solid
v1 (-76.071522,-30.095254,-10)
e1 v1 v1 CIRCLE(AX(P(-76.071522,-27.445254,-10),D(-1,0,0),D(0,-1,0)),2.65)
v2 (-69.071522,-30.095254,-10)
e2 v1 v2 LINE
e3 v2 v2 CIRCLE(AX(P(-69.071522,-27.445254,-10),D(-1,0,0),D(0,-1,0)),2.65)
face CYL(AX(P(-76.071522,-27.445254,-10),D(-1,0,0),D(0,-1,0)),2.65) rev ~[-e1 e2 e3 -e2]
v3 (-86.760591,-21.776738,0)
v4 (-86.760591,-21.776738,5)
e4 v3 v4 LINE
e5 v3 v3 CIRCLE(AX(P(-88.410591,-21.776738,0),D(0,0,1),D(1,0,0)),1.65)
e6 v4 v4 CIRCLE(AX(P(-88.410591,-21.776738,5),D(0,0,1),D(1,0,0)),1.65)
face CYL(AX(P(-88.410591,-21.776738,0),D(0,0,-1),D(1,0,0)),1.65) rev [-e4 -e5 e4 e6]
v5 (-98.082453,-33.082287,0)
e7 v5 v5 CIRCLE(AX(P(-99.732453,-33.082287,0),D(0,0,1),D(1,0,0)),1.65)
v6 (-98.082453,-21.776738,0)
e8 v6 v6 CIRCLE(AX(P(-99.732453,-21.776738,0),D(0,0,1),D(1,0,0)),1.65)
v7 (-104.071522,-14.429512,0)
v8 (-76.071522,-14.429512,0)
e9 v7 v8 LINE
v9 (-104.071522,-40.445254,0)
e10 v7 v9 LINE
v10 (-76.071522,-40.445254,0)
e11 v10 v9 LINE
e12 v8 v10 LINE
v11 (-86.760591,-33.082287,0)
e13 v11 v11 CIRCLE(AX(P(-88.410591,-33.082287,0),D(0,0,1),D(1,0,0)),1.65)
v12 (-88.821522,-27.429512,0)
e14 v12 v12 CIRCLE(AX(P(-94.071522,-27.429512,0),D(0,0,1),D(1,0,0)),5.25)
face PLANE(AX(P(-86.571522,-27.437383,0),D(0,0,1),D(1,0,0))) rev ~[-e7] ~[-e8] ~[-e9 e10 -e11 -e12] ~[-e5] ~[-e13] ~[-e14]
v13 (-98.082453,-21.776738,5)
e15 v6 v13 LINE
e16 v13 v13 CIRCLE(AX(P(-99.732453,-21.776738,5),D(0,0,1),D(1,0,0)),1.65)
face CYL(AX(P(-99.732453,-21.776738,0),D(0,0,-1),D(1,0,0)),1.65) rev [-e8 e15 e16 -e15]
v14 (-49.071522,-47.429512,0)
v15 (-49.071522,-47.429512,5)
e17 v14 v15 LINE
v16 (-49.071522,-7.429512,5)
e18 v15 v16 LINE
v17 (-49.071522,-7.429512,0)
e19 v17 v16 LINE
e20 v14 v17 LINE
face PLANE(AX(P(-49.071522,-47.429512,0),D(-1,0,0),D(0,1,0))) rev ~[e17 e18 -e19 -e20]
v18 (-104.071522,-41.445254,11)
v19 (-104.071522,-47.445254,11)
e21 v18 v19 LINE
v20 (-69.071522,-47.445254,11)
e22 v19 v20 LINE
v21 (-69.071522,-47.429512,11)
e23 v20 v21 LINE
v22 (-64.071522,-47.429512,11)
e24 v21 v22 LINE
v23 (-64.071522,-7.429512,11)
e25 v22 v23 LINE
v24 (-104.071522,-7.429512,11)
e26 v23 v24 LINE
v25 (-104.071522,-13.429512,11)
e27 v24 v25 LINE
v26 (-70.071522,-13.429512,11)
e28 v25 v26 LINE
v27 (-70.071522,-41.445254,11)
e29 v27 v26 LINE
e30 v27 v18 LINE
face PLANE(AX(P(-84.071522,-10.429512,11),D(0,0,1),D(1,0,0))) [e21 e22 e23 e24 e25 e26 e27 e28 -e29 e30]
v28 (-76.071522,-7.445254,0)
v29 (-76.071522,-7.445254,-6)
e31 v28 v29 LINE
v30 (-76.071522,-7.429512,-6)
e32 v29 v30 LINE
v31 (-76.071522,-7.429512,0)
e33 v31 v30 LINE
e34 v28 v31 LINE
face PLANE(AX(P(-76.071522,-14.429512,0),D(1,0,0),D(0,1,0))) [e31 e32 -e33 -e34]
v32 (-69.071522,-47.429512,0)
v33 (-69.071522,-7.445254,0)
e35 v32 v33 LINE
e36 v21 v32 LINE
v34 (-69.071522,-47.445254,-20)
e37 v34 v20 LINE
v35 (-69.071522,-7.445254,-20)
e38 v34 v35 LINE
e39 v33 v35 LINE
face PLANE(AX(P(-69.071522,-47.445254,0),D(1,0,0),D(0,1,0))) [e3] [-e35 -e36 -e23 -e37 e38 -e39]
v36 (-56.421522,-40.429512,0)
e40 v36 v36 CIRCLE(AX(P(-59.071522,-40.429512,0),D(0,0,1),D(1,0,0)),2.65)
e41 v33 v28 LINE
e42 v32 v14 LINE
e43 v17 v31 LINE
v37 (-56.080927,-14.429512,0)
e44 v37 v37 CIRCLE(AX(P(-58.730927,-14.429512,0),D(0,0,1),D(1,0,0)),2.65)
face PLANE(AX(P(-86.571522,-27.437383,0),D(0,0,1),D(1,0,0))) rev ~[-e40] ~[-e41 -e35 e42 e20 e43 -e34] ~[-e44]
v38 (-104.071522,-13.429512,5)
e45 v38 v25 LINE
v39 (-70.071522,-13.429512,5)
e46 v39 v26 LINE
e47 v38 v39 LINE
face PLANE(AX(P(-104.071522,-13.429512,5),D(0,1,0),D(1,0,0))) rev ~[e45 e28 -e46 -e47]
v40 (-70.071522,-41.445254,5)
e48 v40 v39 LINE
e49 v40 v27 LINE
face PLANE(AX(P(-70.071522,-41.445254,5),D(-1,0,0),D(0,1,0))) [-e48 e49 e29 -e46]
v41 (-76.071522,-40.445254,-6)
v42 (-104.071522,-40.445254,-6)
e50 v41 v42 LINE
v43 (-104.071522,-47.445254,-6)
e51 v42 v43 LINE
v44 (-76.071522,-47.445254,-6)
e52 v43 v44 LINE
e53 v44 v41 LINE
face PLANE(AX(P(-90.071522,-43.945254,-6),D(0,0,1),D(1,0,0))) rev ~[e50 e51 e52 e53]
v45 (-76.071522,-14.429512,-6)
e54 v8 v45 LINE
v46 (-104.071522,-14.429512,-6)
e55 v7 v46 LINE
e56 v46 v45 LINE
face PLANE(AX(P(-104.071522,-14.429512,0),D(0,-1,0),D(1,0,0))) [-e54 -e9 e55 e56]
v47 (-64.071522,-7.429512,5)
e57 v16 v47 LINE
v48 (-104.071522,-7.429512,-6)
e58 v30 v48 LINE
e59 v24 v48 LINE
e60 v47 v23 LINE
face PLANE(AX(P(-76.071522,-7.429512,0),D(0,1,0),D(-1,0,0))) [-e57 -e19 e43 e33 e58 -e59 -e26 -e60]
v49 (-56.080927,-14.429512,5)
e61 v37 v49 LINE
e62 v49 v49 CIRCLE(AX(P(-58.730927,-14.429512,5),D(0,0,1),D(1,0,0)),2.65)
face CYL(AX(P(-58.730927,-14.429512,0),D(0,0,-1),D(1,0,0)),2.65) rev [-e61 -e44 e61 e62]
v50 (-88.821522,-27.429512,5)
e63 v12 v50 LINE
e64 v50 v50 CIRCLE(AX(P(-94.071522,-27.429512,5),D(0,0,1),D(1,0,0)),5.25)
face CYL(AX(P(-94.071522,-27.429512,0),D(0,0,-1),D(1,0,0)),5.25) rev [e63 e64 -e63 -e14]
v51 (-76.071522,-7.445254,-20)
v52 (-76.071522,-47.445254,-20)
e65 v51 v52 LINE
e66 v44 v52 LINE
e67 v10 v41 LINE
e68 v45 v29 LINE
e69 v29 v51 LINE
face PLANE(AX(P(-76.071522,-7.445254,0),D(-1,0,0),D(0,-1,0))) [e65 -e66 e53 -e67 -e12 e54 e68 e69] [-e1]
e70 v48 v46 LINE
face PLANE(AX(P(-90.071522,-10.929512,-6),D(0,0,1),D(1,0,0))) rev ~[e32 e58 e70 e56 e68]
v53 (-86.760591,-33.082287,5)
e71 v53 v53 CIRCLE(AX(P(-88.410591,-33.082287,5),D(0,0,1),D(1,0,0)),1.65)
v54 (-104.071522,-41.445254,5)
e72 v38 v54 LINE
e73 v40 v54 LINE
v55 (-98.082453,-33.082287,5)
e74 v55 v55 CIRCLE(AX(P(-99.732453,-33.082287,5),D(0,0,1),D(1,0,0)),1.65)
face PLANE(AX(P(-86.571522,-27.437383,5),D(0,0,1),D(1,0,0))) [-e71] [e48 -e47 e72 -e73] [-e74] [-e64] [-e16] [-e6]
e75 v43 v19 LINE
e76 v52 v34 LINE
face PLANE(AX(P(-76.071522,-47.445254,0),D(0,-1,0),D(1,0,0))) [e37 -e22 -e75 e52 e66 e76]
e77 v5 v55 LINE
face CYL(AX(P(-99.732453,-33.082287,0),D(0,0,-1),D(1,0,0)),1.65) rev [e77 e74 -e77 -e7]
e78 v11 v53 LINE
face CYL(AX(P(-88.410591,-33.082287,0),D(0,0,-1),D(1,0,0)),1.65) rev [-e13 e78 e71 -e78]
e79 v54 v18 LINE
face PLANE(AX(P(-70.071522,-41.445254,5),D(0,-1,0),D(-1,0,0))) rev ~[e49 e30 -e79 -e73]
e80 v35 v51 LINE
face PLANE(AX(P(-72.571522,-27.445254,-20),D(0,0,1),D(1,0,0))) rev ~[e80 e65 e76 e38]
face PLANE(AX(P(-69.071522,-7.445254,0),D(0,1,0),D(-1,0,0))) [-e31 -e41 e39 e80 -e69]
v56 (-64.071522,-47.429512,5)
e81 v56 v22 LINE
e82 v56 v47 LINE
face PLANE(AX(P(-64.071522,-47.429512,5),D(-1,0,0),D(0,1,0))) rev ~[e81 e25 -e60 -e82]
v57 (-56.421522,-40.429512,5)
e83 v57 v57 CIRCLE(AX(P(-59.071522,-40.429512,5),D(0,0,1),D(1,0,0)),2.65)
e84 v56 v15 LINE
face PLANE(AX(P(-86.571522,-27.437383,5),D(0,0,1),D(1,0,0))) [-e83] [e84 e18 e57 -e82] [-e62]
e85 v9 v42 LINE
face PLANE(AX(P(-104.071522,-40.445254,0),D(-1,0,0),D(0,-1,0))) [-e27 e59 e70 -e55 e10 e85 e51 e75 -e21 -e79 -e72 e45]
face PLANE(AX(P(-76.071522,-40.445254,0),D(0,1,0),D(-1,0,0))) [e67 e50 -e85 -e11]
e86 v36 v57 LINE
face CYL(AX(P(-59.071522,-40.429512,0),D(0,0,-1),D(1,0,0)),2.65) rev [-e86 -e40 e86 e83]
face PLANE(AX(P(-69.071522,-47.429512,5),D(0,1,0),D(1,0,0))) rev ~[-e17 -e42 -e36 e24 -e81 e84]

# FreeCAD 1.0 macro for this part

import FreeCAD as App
import Part
import Sketcher
from FreeCAD import Vector

doc = App.newDocument("Part")
body = doc.addObject("PartDesign::Body", "Body")

sketch1 = body.newObject("Sketcher::SketchObject", "Sketch")
sketch1.AttachmentSupport = (doc.getObject("XY_Plane"), [""])
sketch1.MapMode = "FlatFace"
sketch1.addGeometry(Part.LineSegment(Vector(-69.072, -47.445, 0), Vector(-69.072, -47.43, 0)), False)
sketch1.addGeometry(Part.LineSegment(Vector(-69.072, -47.43, 0), Vector(-49.072, -47.43, 0)), False)
sketch1.addGeometry(Part.LineSegment(Vector(-49.072, -47.43, 0), Vector(-49.072, -7.43, 0)), False)
sketch1.addGeometry(Part.LineSegment(Vector(-49.072, -7.43, 0), Vector(-104.072, -7.43, 0)), False)
sketch1.addGeometry(Part.LineSegment(Vector(-104.072, -7.43, 0), Vector(-104.072, -47.445, 0)), False)
sketch1.addGeometry(Part.LineSegment(Vector(-104.072, -47.445, 0), Vector(-69.072, -47.445, 0)), False)
sketch1.addGeometry(Part.Circle(Vector(-99.732, -33.082, 0), Vector(0, 0, 1), 1.65), False)
sketch1.addGeometry(Part.Circle(Vector(-88.411, -33.082, 0), Vector(0, 0, 1), 1.65), False)
sketch1.addGeometry(Part.Circle(Vector(-59.072, -40.43, 0), Vector(0, 0, 1), 2.65), False)
sketch1.addGeometry(Part.Circle(Vector(-94.072, -27.43, 0), Vector(0, 0, 1), 5.25), False)
sketch1.addGeometry(Part.Circle(Vector(-99.732, -21.777, 0), Vector(0, 0, 1), 1.65), False)
sketch1.addGeometry(Part.Circle(Vector(-88.411, -21.777, 0), Vector(0, 0, 1), 1.65), False)
sketch1.addGeometry(Part.Circle(Vector(-58.731, -14.43, 0), Vector(0, 0, 1), 2.65), False)
sketch1.addConstraint(Sketcher.Constraint("Coincident", 0, 2, 1, 1))
sketch1.addConstraint(Sketcher.Constraint("Coincident", 1, 2, 2, 1))
sketch1.addConstraint(Sketcher.Constraint("Coincident", 2, 2, 3, 1))
sketch1.addConstraint(Sketcher.Constraint("Coincident", 3, 2, 4, 1))
sketch1.addConstraint(Sketcher.Constraint("Coincident", 4, 2, 5, 1))
sketch1.addConstraint(Sketcher.Constraint("Coincident", 5, 2, 0, 1))
sketch1.addConstraint(Sketcher.Constraint("Vertical", 0))
sketch1.addConstraint(Sketcher.Constraint("Horizontal", 1))
sketch1.addConstraint(Sketcher.Constraint("Vertical", 2))
sketch1.addConstraint(Sketcher.Constraint("Horizontal", 3))
sketch1.addConstraint(Sketcher.Constraint("Vertical", 4))
sketch1.addConstraint(Sketcher.Constraint("Horizontal", 5))
sketch1.addConstraint(Sketcher.Constraint("Equal", 6, 7))
sketch1.addConstraint(Sketcher.Constraint("Equal", 7, 10))
sketch1.addConstraint(Sketcher.Constraint("Equal", 10, 11))
sketch1.addConstraint(Sketcher.Constraint("Equal", 8, 12))
sketch1.addConstraint(Sketcher.Constraint("Horizontal", 6, 3, 7, 3))
sketch1.addConstraint(Sketcher.Constraint("Horizontal", 10, 3, 11, 3))
sketch1.addConstraint(Sketcher.Constraint("Vertical", 6, 3, 10, 3))
sketch1.addConstraint(Sketcher.Constraint("Vertical", 7, 3, 11, 3))
sketch1.addConstraint(Sketcher.Constraint("Diameter", 6, 3.3))
sketch1.addConstraint(Sketcher.Constraint("Diameter", 8, 5.3))
sketch1.addConstraint(Sketcher.Constraint("Diameter", 9, 10.5))
sketch1.addConstraint(Sketcher.Constraint("DistanceX", 1, 1, 1, 2, 20.0))
sketch1.addConstraint(Sketcher.Constraint("DistanceX", 3, 2, 3, 1, 55.0))
sketch1.addConstraint(Sketcher.Constraint("DistanceY", 2, 1, 2, 2, 40.0))
sketch1.addConstraint(Sketcher.Constraint("DistanceX", 9, 3, 8, 3, 35.0))
sketch1.addConstraint(Sketcher.Constraint("DistanceY", 8, 3, 9, 3, 13.0))
sketch1.addConstraint(Sketcher.Constraint("DistanceY", 8, 3, 12, 3, 26.0))
sketch1.addConstraint(Sketcher.Constraint("DistanceX", 0, 2, 8, 3, 10.0))
sketch1.addConstraint(Sketcher.Constraint("DistanceY", 0, 2, 8, 3, 7.0))
sketch1.addConstraint(Sketcher.Constraint("DistanceY", 0, 1, 0, 2, 0.015741))
sketch1.addConstraint(Sketcher.Constraint("DistanceX", 7, 3, -1, 1, 88.410591))
sketch1.addConstraint(Sketcher.Constraint("DistanceX", 8, 3, -1, 1, 59.071522))
sketch1.addConstraint(Sketcher.Constraint("DistanceX", 6, 3, 8, 3, 40.660931))
sketch1.addConstraint(Sketcher.Constraint("DistanceY", 6, 3, 10, 3, 11.305549))
sketch1.addConstraint(Sketcher.Constraint("DistanceY", 6, 3, -1, 1, 33.082287))
sketch1.addConstraint(Sketcher.Constraint("DistanceY", 8, 3, -1, 1, 40.429512))
sketch1.addConstraint(Sketcher.Constraint("DistanceX", 12, 3, -1, 1, 58.730927))
pad1 = body.newObject("PartDesign::Pad", "Pad")
pad1.Profile = sketch1
pad1.Length = 5

sketch2 = body.newObject("Sketcher::SketchObject", "Sketch001")
sketch2.AttachmentSupport = (doc.getObject("XY_Plane"), [""])
sketch2.MapMode = "FlatFace"
sketch2.AttachmentOffset = App.Placement(Vector(0, 0, 5), App.Rotation())
sketch2.addGeometry(Part.LineSegment(Vector(-64.072, -7.43, 0), Vector(-104.072, -7.43, 0)), False)
sketch2.addGeometry(Part.LineSegment(Vector(-104.072, -7.43, 0), Vector(-104.072, -13.43, 0)), False)
sketch2.addGeometry(Part.LineSegment(Vector(-104.072, -13.43, 0), Vector(-70.072, -13.43, 0)), False)
sketch2.addGeometry(Part.LineSegment(Vector(-70.072, -13.43, 0), Vector(-70.072, -41.445, 0)), False)
sketch2.addGeometry(Part.LineSegment(Vector(-70.072, -41.445, 0), Vector(-104.072, -41.445, 0)), False)
sketch2.addGeometry(Part.LineSegment(Vector(-104.072, -41.445, 0), Vector(-104.072, -47.445, 0)), False)
sketch2.addGeometry(Part.LineSegment(Vector(-104.072, -47.445, 0), Vector(-69.072, -47.445, 0)), False)
sketch2.addGeometry(Part.LineSegment(Vector(-69.072, -47.445, 0), Vector(-69.072, -47.43, 0)), False)
sketch2.addGeometry(Part.LineSegment(Vector(-69.072, -47.43, 0), Vector(-64.072, -47.43, 0)), False)
sketch2.addGeometry(Part.LineSegment(Vector(-64.072, -47.43, 0), Vector(-64.072, -7.43, 0)), False)
sketch2.addConstraint(Sketcher.Constraint("Coincident", 0, 2, 1, 1))
sketch2.addConstraint(Sketcher.Constraint("Coincident", 1, 2, 2, 1))
sketch2.addConstraint(Sketcher.Constraint("Coincident", 2, 2, 3, 1))
sketch2.addConstraint(Sketcher.Constraint("Coincident", 3, 2, 4, 1))
sketch2.addConstraint(Sketcher.Constraint("Coincident", 4, 2, 5, 1))
sketch2.addConstraint(Sketcher.Constraint("Coincident", 5, 2, 6, 1))
sketch2.addConstraint(Sketcher.Constraint("Coincident", 6, 2, 7, 1))
sketch2.addConstraint(Sketcher.Constraint("Coincident", 7, 2, 8, 1))
sketch2.addConstraint(Sketcher.Constraint("Coincident", 8, 2, 9, 1))
sketch2.addConstraint(Sketcher.Constraint("Coincident", 9, 2, 0, 1))
sketch2.addConstraint(Sketcher.Constraint("Horizontal", 0))
sketch2.addConstraint(Sketcher.Constraint("Vertical", 1))
sketch2.addConstraint(Sketcher.Constraint("Horizontal", 2))
sketch2.addConstraint(Sketcher.Constraint("Vertical", 3))
sketch2.addConstraint(Sketcher.Constraint("Horizontal", 4))
sketch2.addConstraint(Sketcher.Constraint("Vertical", 5))
sketch2.addConstraint(Sketcher.Constraint("Horizontal", 6))
sketch2.addConstraint(Sketcher.Constraint("Vertical", 7))
sketch2.addConstraint(Sketcher.Constraint("Horizontal", 8))
sketch2.addConstraint(Sketcher.Constraint("Vertical", 9))
sketch2.addConstraint(Sketcher.Constraint("Vertical", 1, 2, 4, 2))
sketch2.addConstraint(Sketcher.Constraint("Equal", 1, 5))
sketch2.addConstraint(Sketcher.Constraint("Equal", 0, 9))
sketch2.addConstraint(Sketcher.Constraint("DistanceX", 0, 2, 0, 1, 40.0))
sketch2.addConstraint(Sketcher.Constraint("DistanceX", 2, 1, 2, 2, 34.0))
sketch2.addConstraint(Sketcher.Constraint("DistanceX", 6, 1, 6, 2, 35.0))
sketch2.addConstraint(Sketcher.Constraint("DistanceY", 1, 2, 1, 1, 6.0))
sketch2.addConstraint(Sketcher.Constraint("DistanceY", 3, 2, 3, 1, 28.015741))
sketch2.addConstraint(Sketcher.Constraint("DistanceX", 0, 2, -1, 1, 104.071522))
sketch2.addConstraint(Sketcher.Constraint("DistanceY", 0, 2, -1, 1, 7.429512))
pad2 = body.newObject("PartDesign::Pad", "Pad001")
pad2.Profile = sketch2
pad2.Length = 6

sketch3 = body.newObject("Sketcher::SketchObject", "Sketch002")
sketch3.AttachmentSupport = (doc.getObject("XY_Plane"), [""])
sketch3.MapMode = "FlatFace"
sketch3.addGeometry(Part.LineSegment(Vector(-76, -47, 0), Vector(-69, -47, 0)), False)
sketch3.addGeometry(Part.LineSegment(Vector(-69, -47, 0), Vector(-69, -7, 0)), False)
sketch3.addGeometry(Part.LineSegment(Vector(-69, -7, 0), Vector(-76, -7, 0)), False)
sketch3.addGeometry(Part.LineSegment(Vector(-76, -7, 0), Vector(-76, -47, 0)), False)
sketch3.addConstraint(Sketcher.Constraint("Coincident", 0, 2, 1, 1))
sketch3.addConstraint(Sketcher.Constraint("Coincident", 1, 2, 2, 1))
sketch3.addConstraint(Sketcher.Constraint("Coincident", 2, 2, 3, 1))
sketch3.addConstraint(Sketcher.Constraint("Coincident", 3, 2, 0, 1))
sketch3.addConstraint(Sketcher.Constraint("Horizontal", 0))
sketch3.addConstraint(Sketcher.Constraint("Vertical", 1))
sketch3.addConstraint(Sketcher.Constraint("Horizontal", 2))
sketch3.addConstraint(Sketcher.Constraint("Vertical", 3))
sketch3.addConstraint(Sketcher.Constraint("DistanceX", 0, 1, 0, 2, 7.0))
sketch3.addConstraint(Sketcher.Constraint("DistanceY", 1, 1, 1, 2, 40.0))
sketch3.addConstraint(Sketcher.Constraint("DistanceX", 0, 2, -1, 1, 69.071522))
sketch3.addConstraint(Sketcher.Constraint("DistanceY", 0, 2, -1, 1, 47.445254))
pad3 = body.newObject("PartDesign::Pad", "Pad002")
pad3.Profile = sketch3
pad3.Length = 20
pad3.Reversed = True

sketch4 = body.newObject("Sketcher::SketchObject", "Sketch003")
sketch4.AttachmentSupport = (doc.getObject("YZ_Plane"), [""])
sketch4.MapMode = "FlatFace"
sketch4.AttachmentOffset = App.Placement(Vector(0, 0, -76.071522), App.Rotation())
sketch4.addGeometry(Part.Circle(Vector(-27.4, -10, 0), Vector(0, 0, 1), 2.6), False)
sketch4.addConstraint(Sketcher.Constraint("Diameter", 0, 5.3))
sketch4.addConstraint(Sketcher.Constraint("DistanceY", 0, 3, -1, 1, 10.0))
sketch4.addConstraint(Sketcher.Constraint("DistanceX", 0, 3, -1, 1, 27.445254))
pocket1 = body.newObject("PartDesign::Pocket", "Pocket")
pocket1.Profile = sketch4
pocket1.Length = 25
pocket1.Reversed = True

sketch5 = body.newObject("Sketcher::SketchObject", "Sketch004")
sketch5.AttachmentSupport = (doc.getObject("XY_Plane"), [""])
sketch5.MapMode = "FlatFace"
sketch5.addGeometry(Part.LineSegment(Vector(-76, -47, 0), Vector(-76, -40, 0)), False)
sketch5.addGeometry(Part.LineSegment(Vector(-76, -40, 0), Vector(-104, -40, 0)), False)
sketch5.addGeometry(Part.LineSegment(Vector(-104, -40, 0), Vector(-104, -47, 0)), False)
sketch5.addGeometry(Part.LineSegment(Vector(-104, -47, 0), Vector(-76, -47, 0)), False)
sketch5.addGeometry(Part.LineSegment(Vector(-76, -14, 0), Vector(-76, -7, 0)), False)
sketch5.addGeometry(Part.LineSegment(Vector(-76, -7, 0), Vector(-104, -7, 0)), False)
sketch5.addGeometry(Part.LineSegment(Vector(-104, -7, 0), Vector(-104, -14, 0)), False)
sketch5.addGeometry(Part.LineSegment(Vector(-104, -14, 0), Vector(-76, -14, 0)), False)
sketch5.addConstraint(Sketcher.Constraint("Coincident", 0, 2, 1, 1))
sketch5.addConstraint(Sketcher.Constraint("Coincident", 1, 2, 2, 1))
sketch5.addConstraint(Sketcher.Constraint("Coincident", 2, 2, 3, 1))
sketch5.addConstraint(Sketcher.Constraint("Coincident", 3, 2, 0, 1))
sketch5.addConstraint(Sketcher.Constraint("Coincident", 4, 2, 5, 1))
sketch5.addConstraint(Sketcher.Constraint("Coincident", 5, 2, 6, 1))
sketch5.addConstraint(Sketcher.Constraint("Coincident", 6, 2, 7, 1))
sketch5.addConstraint(Sketcher.Constraint("Coincident", 7, 2, 4, 1))
sketch5.addConstraint(Sketcher.Constraint("Vertical", 0))
sketch5.addConstraint(Sketcher.Constraint("Horizontal", 1))
sketch5.addConstraint(Sketcher.Constraint("Vertical", 2))
sketch5.addConstraint(Sketcher.Constraint("Horizontal", 3))
sketch5.addConstraint(Sketcher.Constraint("Vertical", 4))
sketch5.addConstraint(Sketcher.Constraint("Horizontal", 5))
sketch5.addConstraint(Sketcher.Constraint("Vertical", 6))
sketch5.addConstraint(Sketcher.Constraint("Horizontal", 7))
sketch5.addConstraint(Sketcher.Constraint("Vertical", 3, 2, 4, 2))
sketch5.addConstraint(Sketcher.Constraint("Vertical", 2, 2, 5, 2))
sketch5.addConstraint(Sketcher.Constraint("Equal", 2, 4))
sketch5.addConstraint(Sketcher.Constraint("DistanceX", 1, 2, 1, 1, 28.0))
sketch5.addConstraint(Sketcher.Constraint("DistanceY", 0, 1, 0, 2, 7.0))
sketch5.addConstraint(Sketcher.Constraint("DistanceX", 0, 2, -1, 1, 76.071522))
sketch5.addConstraint(Sketcher.Constraint("DistanceY", 0, 2, 4, 2, 33.015741))
sketch5.addConstraint(Sketcher.Constraint("DistanceY", 0, 2, -1, 1, 40.445254))
pad4 = body.newObject("PartDesign::Pad", "Pad003")
pad4.Profile = sketch5
pad4.Length = 6
pad4.Reversed = True

doc.recompute()
